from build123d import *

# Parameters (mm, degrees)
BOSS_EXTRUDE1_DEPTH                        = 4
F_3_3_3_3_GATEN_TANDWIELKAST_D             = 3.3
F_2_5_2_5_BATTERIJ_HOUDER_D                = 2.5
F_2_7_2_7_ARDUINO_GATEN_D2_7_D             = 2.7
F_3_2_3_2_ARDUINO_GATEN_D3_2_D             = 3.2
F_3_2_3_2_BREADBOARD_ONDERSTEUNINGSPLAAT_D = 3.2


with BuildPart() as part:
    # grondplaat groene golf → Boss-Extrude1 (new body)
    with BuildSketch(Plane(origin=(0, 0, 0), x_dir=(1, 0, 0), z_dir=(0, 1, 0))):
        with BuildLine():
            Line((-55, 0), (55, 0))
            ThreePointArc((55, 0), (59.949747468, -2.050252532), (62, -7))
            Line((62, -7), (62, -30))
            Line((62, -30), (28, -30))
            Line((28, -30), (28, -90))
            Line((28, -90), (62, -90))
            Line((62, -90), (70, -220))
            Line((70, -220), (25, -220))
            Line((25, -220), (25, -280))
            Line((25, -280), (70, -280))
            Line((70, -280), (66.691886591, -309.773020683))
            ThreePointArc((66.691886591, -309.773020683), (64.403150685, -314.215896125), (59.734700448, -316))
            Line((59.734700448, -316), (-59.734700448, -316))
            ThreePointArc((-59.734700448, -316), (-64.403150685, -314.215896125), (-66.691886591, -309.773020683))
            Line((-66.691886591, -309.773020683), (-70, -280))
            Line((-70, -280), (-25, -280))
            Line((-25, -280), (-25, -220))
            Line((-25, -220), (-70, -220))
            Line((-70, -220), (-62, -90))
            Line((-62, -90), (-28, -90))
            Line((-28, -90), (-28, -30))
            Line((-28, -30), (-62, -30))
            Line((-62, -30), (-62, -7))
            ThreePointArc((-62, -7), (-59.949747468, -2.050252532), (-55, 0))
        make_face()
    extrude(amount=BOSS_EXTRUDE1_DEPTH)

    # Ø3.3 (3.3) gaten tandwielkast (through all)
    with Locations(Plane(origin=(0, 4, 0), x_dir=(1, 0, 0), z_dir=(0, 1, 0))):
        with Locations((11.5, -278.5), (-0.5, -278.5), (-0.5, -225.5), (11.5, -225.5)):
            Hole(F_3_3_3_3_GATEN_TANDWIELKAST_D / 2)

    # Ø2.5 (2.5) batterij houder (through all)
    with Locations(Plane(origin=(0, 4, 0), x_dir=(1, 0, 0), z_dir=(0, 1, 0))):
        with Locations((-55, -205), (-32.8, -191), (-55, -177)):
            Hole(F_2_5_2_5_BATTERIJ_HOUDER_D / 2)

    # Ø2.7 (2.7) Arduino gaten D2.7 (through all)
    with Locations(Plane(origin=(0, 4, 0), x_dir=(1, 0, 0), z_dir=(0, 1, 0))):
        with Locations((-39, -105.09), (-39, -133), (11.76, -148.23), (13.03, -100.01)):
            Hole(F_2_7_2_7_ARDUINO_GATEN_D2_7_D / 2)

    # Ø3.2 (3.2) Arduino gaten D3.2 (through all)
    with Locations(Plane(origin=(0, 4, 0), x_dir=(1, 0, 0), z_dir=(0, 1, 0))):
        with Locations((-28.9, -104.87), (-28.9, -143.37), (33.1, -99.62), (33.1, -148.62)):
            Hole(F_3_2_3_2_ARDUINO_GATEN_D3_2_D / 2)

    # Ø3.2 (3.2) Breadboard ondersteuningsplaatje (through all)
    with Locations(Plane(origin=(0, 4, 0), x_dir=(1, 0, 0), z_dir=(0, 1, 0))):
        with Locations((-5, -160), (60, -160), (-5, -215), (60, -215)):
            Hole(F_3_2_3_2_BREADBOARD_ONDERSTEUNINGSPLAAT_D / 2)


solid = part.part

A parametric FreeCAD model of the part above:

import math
import FreeCAD as App
import Part
import Sketcher

doc = App.newDocument("Part")
body = doc.addObject("PartDesign::Body", "Body")

# Sketch on XZ plane
sketch1 = doc.addObject("Sketcher::SketchObject", "Sketch")
body.addObject(sketch1)
sketch1.AttachmentSupport = (doc.XZ_Plane, [""])
sketch1.MapMode = "FlatFace"
sketch1.addGeometry([
    Part.LineSegment(App.Vector(55, 0, 0), App.Vector(-55, 0, 0)),  # 0
    Part.ArcOfCircle(Part.Circle(App.Vector(-55, 7, 0), App.Vector(0, 0, 1), 7), math.radians(-180), math.radians(-90)),  # 1
    Part.LineSegment(App.Vector(-62, 7, 0), App.Vector(-62, 30, 0)),  # 2
    Part.LineSegment(App.Vector(-62, 30, 0), App.Vector(-28, 30, 0)),  # 3
    Part.LineSegment(App.Vector(-28, 30, 0), App.Vector(-28, 90, 0)),  # 4
    Part.LineSegment(App.Vector(-28, 90, 0), App.Vector(-62, 90, 0)),  # 5
    Part.LineSegment(App.Vector(-62, 90, 0), App.Vector(-70, 220, 0)),  # 6
    Part.LineSegment(App.Vector(-70, 220, 0), App.Vector(-25, 220, 0)),  # 7
    Part.LineSegment(App.Vector(-25, 220, 0), App.Vector(-25, 280, 0)),  # 8
    Part.LineSegment(App.Vector(-25, 280, 0), App.Vector(-70, 280, 0)),  # 9
    Part.LineSegment(App.Vector(-70, 280, 0), App.Vector(-67, 310, 0)),  # 10
    Part.ArcOfCircle(Part.Circle(App.Vector(-60, 309, 0), App.Vector(0, 0, 1), 7), math.radians(90), math.radians(174)),  # 11
    Part.LineSegment(App.Vector(-60, 316, 0), App.Vector(60, 316, 0)),  # 12
    Part.ArcOfCircle(Part.Circle(App.Vector(60, 309, 0), App.Vector(0, 0, 1), 7), math.radians(6), math.radians(90)),  # 13
    Part.LineSegment(App.Vector(67, 310, 0), App.Vector(70, 280, 0)),  # 14
    Part.LineSegment(App.Vector(70, 280, 0), App.Vector(25, 280, 0)),  # 15
    Part.LineSegment(App.Vector(25, 280, 0), App.Vector(25, 220, 0)),  # 16
    Part.LineSegment(App.Vector(25, 220, 0), App.Vector(70, 220, 0)),  # 17
    Part.LineSegment(App.Vector(70, 220, 0), App.Vector(62, 90, 0)),  # 18
    Part.LineSegment(App.Vector(62, 90, 0), App.Vector(28, 90, 0)),  # 19
    Part.LineSegment(App.Vector(28, 90, 0), App.Vector(28, 30, 0)),  # 20
    Part.LineSegment(App.Vector(28, 30, 0), App.Vector(62, 30, 0)),  # 21
    Part.LineSegment(App.Vector(62, 30, 0), App.Vector(62, 7, 0)),  # 22
    Part.ArcOfCircle(Part.Circle(App.Vector(55, 7, 0), App.Vector(0, 0, 1), 7), math.radians(-90), math.radians(0)),  # 23
], False)
sketch1.addConstraint([
    Sketcher.Constraint("Tangent", 0, 2, 1, 2),
    Sketcher.Constraint("Tangent", 1, 1, 2, 1),
    Sketcher.Constraint("Coincident", 2, 2, 3, 1),
    Sketcher.Constraint("Coincident", 3, 2, 4, 1),
    Sketcher.Constraint("Coincident", 4, 2, 5, 1),
    Sketcher.Constraint("Coincident", 5, 2, 6, 1),
    Sketcher.Constraint("Coincident", 6, 2, 7, 1),
    Sketcher.Constraint("Coincident", 7, 2, 8, 1),
    Sketcher.Constraint("Coincident", 8, 2, 9, 1),
    Sketcher.Constraint("Coincident", 9, 2, 10, 1),
    Sketcher.Constraint("Tangent", 10, 2, 11, 2),
    Sketcher.Constraint("Tangent", 11, 1, 12, 1),
    Sketcher.Constraint("Tangent", 12, 2, 13, 2),
    Sketcher.Constraint("Tangent", 13, 1, 14, 1),
    Sketcher.Constraint("Coincident", 14, 2, 15, 1),
    Sketcher.Constraint("Coincident", 15, 2, 16, 1),
    Sketcher.Constraint("Coincident", 16, 2, 17, 1),
    Sketcher.Constraint("Coincident", 17, 2, 18, 1),
    Sketcher.Constraint("Coincident", 18, 2, 19, 1),
    Sketcher.Constraint("Coincident", 19, 2, 20, 1),
    Sketcher.Constraint("Coincident", 20, 2, 21, 1),
    Sketcher.Constraint("Coincident", 21, 2, 22, 1),
    Sketcher.Constraint("Tangent", 22, 2, 23, 2),
    Sketcher.Constraint("Tangent", 23, 1, 0, 1),
    Sketcher.Constraint("Horizontal", 0),
    Sketcher.Constraint("Vertical", 2),
    Sketcher.Constraint("Horizontal", 3),
    Sketcher.Constraint("Vertical", 4),
    Sketcher.Constraint("Horizontal", 5),
    Sketcher.Constraint("Horizontal", 7),
    Sketcher.Constraint("Vertical", 8),
    Sketcher.Constraint("Horizontal", 9),
    Sketcher.Constraint("Horizontal", 12),
    Sketcher.Constraint("Horizontal", 15),
    Sketcher.Constraint("Vertical", 16),
    Sketcher.Constraint("Horizontal", 17),
    Sketcher.Constraint("Horizontal", 19),
    Sketcher.Constraint("Vertical", 20),
    Sketcher.Constraint("Horizontal", 21),
    Sketcher.Constraint("Vertical", 22),
    Sketcher.Constraint("Equal", 1, 11),
    Sketcher.Constraint("Equal", 11, 13),
    Sketcher.Constraint("Equal", 13, 23),
    Sketcher.Constraint("Symmetric", 0, 2, 23, 1, -1, 1),
    Sketcher.Constraint("Symmetric", 10, 2, 13, 1, -2),
    Sketcher.Constraint("Symmetric", 8, 2, 15, 2, -2),
    Sketcher.Constraint("Symmetric", 6, 2, 17, 2, -2),
    Sketcher.Constraint("Symmetric", 5, 2, 18, 2, -2),
    Sketcher.Constraint("Symmetric", 3, 2, 20, 2, -2),
    Sketcher.Constraint("Vertical", 2, 2, 5, 2),
    Sketcher.Constraint("Vertical", 6, 2, 9, 2),
    Sketcher.Constraint("Equal", 4, 8),
    Sketcher.Constraint("Radius", 1, 7.0),
    Sketcher.Constraint("DistanceX", 0, 2, 0, 1, 110.0),
    Sketcher.Constraint("DistanceX", 3, 1, 3, 2, 34.0),
    Sketcher.Constraint("DistanceX", 7, 1, 7, 2, 45.0),
    Sketcher.Constraint("DistanceY", 2, 1, 2, 2, 23.0),
    Sketcher.Constraint("DistanceY", 4, 1, 4, 2, 60.0),
    Sketcher.Constraint("DistanceY", -1, 1, 11, 3, 309.0),
    Sketcher.Constraint("DistanceX", 6, 2, -1, 1, 70.0),
    Sketcher.Constraint("DistanceY", -1, 1, 6, 2, 220.0),
    Sketcher.Constraint("DistanceX", 12, 1, 12, 2, 119.469401),
])
pad1 = doc.addObject("PartDesign::Pad", "Pad")
body.addObject(pad1)
pad1.Profile = sketch1
pad1.Length = 4
pad1.Reversed = True

# Sketch on XZ plane
sketch2 = doc.addObject("Sketcher::SketchObject", "Sketch001")
body.addObject(sketch2)
sketch2.AttachmentSupport = (doc.XZ_Plane, [""])
sketch2.MapMode = "FlatFace"
sketch2.AttachmentOffset = App.Placement(App.Vector(0, 0, -4), App.Rotation())
sketch2.addGeometry([
    Part.Circle(App.Vector(11.5, 278.5, 0), App.Vector(0, 0, 1), 1.6),
    Part.Circle(App.Vector(-0.5, 278.5, 0), App.Vector(0, 0, 1), 1.6),
    Part.Circle(App.Vector(-0.5, 225.5, 0), App.Vector(0, 0, 1), 1.6),
    Part.Circle(App.Vector(11.5, 225.5, 0), App.Vector(0, 0, 1), 1.6),
], False)
sketch2.addConstraint([
    Sketcher.Constraint("Equal", 0, 1),
    Sketcher.Constraint("Equal", 1, 2),
    Sketcher.Constraint("Equal", 2, 3),
    Sketcher.Constraint("Horizontal", 0, 3, 1, 3),
    Sketcher.Constraint("Horizontal", 2, 3, 3, 3),
    Sketcher.Constraint("Vertical", 1, 3, 2, 3),
    Sketcher.Constraint("Vertical", 0, 3, 3, 3),
    Sketcher.Constraint("Diameter", 0, 3.3),
    Sketcher.Constraint("DistanceX", 1, 3, 0, 3, 12.0),
    Sketcher.Constraint("DistanceY", 2, 3, 1, 3, 53.0),
    Sketcher.Constraint("DistanceX", -1, 1, 0, 3, 11.5),
    Sketcher.Constraint("DistanceY", -1, 1, 0, 3, 278.5),
])
doc.recompute()
hole = doc.addObject("PartDesign::Hole", "Hole")
body.addObject(hole)
hole.Profile = sketch2
hole.ThreadType = "None"
hole.Diameter = 3.3
hole.DepthType = "ThroughAll"
hole.Reversed = True

# Sketch on XZ plane
sketch3 = doc.addObject("Sketcher::SketchObject", "Sketch002")
body.addObject(sketch3)
sketch3.AttachmentSupport = (doc.XZ_Plane, [""])
sketch3.MapMode = "FlatFace"
sketch3.AttachmentOffset = App.Placement(App.Vector(0, 0, -4), App.Rotation())
sketch3.addGeometry([
    Part.Circle(App.Vector(-55, 205, 0), App.Vector(0, 0, 1), 1.2),
    Part.Circle(App.Vector(-32.8, 191, 0), App.Vector(0, 0, 1), 1.2),
    Part.Circle(App.Vector(-55, 177, 0), App.Vector(0, 0, 1), 1.2),
], False)
sketch3.addConstraint([
    Sketcher.Constraint("Equal", 0, 1),
    Sketcher.Constraint("Equal", 1, 2),
    Sketcher.Constraint("Vertical", 0, 3, 2, 3),
    Sketcher.Constraint("Diameter", 0, 2.5),
    Sketcher.Constraint("DistanceX", 0, 3, -1, 1, 55.0),
    Sketcher.Constraint("DistanceY", -1, 1, 0, 3, 205.0),
    Sketcher.Constraint("DistanceY", -1, 1, 1, 3, 191.0),
    Sketcher.Constraint("DistanceY", -1, 1, 2, 3, 177.0),
    Sketcher.Constraint("DistanceX", 1, 3, -1, 1, 32.8),
])
doc.recompute()
hole2 = doc.addObject("PartDesign::Hole", "Hole001")
body.addObject(hole2)
hole2.Profile = sketch3
hole2.ThreadType = "None"
hole2.Diameter = 2.5
hole2.DepthType = "ThroughAll"
hole2.Reversed = True

# Sketch on XZ plane
sketch4 = doc.addObject("Sketcher::SketchObject", "Sketch003")
body.addObject(sketch4)
sketch4.AttachmentSupport = (doc.XZ_Plane, [""])
sketch4.MapMode = "FlatFace"
sketch4.AttachmentOffset = App.Placement(App.Vector(0, 0, -4), App.Rotation())
sketch4.addGeometry([
    Part.Circle(App.Vector(-39, 105.1, 0), App.Vector(0, 0, 1), 1.4),
    Part.Circle(App.Vector(-39, 133, 0), App.Vector(0, 0, 1), 1.4),
    Part.Circle(App.Vector(11.8, 148.2, 0), App.Vector(0, 0, 1), 1.4),
    Part.Circle(App.Vector(13, 100, 0), App.Vector(0, 0, 1), 1.4),
], False)
sketch4.addConstraint([
    Sketcher.Constraint("Equal", 0, 1),
    Sketcher.Constraint("Equal", 1, 2),
    Sketcher.Constraint("Equal", 2, 3),
    Sketcher.Constraint("Vertical", 0, 3, 1, 3),
    Sketcher.Constraint("Diameter", 0, 2.7),
    Sketcher.Constraint("DistanceX", 0, 3, -1, 1, 39.0),
    Sketcher.Constraint("DistanceY", -1, 1, 1, 3, 133.0),
    Sketcher.Constraint("DistanceY", -1, 1, 0, 3, 105.09),
    Sketcher.Constraint("DistanceX", -1, 1, 2, 3, 11.76),
    Sketcher.Constraint("DistanceY", -1, 1, 2, 3, 148.23),
    Sketcher.Constraint("DistanceX", -1, 1, 3, 3, 13.03),
    Sketcher.Constraint("DistanceY", -1, 1, 3, 3, 100.01),
])
doc.recompute()
hole3 = doc.addObject("PartDesign::Hole", "Hole002")
body.addObject(hole3)
hole3.Profile = sketch4
hole3.ThreadType = "None"
hole3.Diameter = 2.7
hole3.DepthType = "ThroughAll"
hole3.Reversed = True

# Sketch on XZ plane
sketch5 = doc.addObject("Sketcher::SketchObject", "Sketch004")
body.addObject(sketch5)
sketch5.AttachmentSupport = (doc.XZ_Plane, [""])
sketch5.MapMode = "FlatFace"
sketch5.AttachmentOffset = App.Placement(App.Vector(0, 0, -4), App.Rotation())
sketch5.addGeometry([
    Part.Circle(App.Vector(-28.9, 104.9, 0), App.Vector(0, 0, 1), 1.6),
    Part.Circle(App.Vector(-28.9, 143.4, 0), App.Vector(0, 0, 1), 1.6),
    Part.Circle(App.Vector(33.1, 99.6, 0), App.Vector(0, 0, 1), 1.6),
    Part.Circle(App.Vector(33.1, 148.6, 0), App.Vector(0, 0, 1), 1.6),
], False)
sketch5.addConstraint([
    Sketcher.Constraint("Equal", 0, 1),
    Sketcher.Constraint("Equal", 1, 2),
    Sketcher.Constraint("Equal", 2, 3),
    Sketcher.Constraint("Vertical", 0, 3, 1, 3),
    Sketcher.Constraint("Vertical", 2, 3, 3, 3),
    Sketcher.Constraint("Diameter", 0, 3.2),
    Sketcher.Constraint("DistanceX", 0, 3, 2, 3, 62.0),
    Sketcher.Constraint("DistanceY", 2, 3, 3, 3, 49.0),
    Sketcher.Constraint("DistanceX", 0, 3, -1, 1, 28.9),
    Sketcher.Constraint("DistanceY", 0, 3, 1, 3, 38.5),
    Sketcher.Constraint("DistanceY", -1, 1, 0, 3, 104.87),
    Sketcher.Constraint("DistanceY", -1, 1, 2, 3, 99.62),
])
doc.recompute()
hole4 = doc.addObject("PartDesign::Hole", "Hole003")
body.addObject(hole4)
hole4.Profile = sketch5
hole4.ThreadType = "None"
hole4.Diameter = 3.2
hole4.DepthType = "ThroughAll"
hole4.Reversed = True

# Sketch on XZ plane
sketch6 = doc.addObject("Sketcher::SketchObject", "Sketch005")
body.addObject(sketch6)
sketch6.AttachmentSupport = (doc.XZ_Plane, [""])
sketch6.MapMode = "FlatFace"
sketch6.AttachmentOffset = App.Placement(App.Vector(0, 0, -4), App.Rotation())
sketch6.addGeometry([
    Part.Circle(App.Vector(-5, 160, 0), App.Vector(0, 0, 1), 1.6),
    Part.Circle(App.Vector(60, 160, 0), App.Vector(0, 0, 1), 1.6),
    Part.Circle(App.Vector(-5, 215, 0), App.Vector(0, 0, 1), 1.6),
    Part.Circle(App.Vector(60, 215, 0), App.Vector(0, 0, 1), 1.6),
], False)
sketch6.addConstraint([
    Sketcher.Constraint("Equal", 0, 1),
    Sketcher.Constraint("Equal", 1, 2),
    Sketcher.Constraint("Equal", 2, 3),
    Sketcher.Constraint("Horizontal", 0, 3, 1, 3),
    Sketcher.Constraint("Horizontal", 2, 3, 3, 3),
    Sketcher.Constraint("Vertical", 0, 3, 2, 3),
    Sketcher.Constraint("Vertical", 1, 3, 3, 3),
    Sketcher.Constraint("Diameter", 0, 3.2),
    Sketcher.Constraint("DistanceX", 0, 3, -1, 1, 5.0),
    Sketcher.Constraint("DistanceY", -1, 1, 0, 3, 160.0),
    Sketcher.Constraint("DistanceX", -1, 1, 1, 3, 60.0),
    Sketcher.Constraint("DistanceY", -1, 1, 2, 3, 215.0),
])
doc.recompute()
hole5 = doc.addObject("PartDesign::Hole", "Hole004")
body.addObject(hole5)
hole5.Profile = sketch6
hole5.ThreadType = "None"
hole5.Diameter = 3.2
hole5.DepthType = "ThroughAll"
hole5.Reversed = True

doc.recompute()
